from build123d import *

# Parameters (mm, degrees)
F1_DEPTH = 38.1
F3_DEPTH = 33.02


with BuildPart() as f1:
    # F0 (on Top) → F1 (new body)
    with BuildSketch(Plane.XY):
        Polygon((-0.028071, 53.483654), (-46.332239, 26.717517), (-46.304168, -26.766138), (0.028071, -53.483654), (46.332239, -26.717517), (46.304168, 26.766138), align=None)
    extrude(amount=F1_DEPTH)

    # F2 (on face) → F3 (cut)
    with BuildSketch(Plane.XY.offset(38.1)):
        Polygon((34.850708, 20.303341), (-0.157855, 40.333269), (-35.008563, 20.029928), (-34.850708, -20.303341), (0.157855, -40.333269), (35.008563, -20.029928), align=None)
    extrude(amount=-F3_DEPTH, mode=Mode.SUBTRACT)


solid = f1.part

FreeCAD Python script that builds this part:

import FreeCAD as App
import Part
import Sketcher
Q = App.Units.Quantity


def add_polygon(sketch, points):
    """Adds a closed chain of lines whose ends are joined by coincident constraints."""
    first, n = sketch.GeometryCount, len(points)
    for a, b in zip(points, points[1:] + points[:1]):
        sketch.addGeometry(Part.LineSegment(App.Vector(*a, 0), App.Vector(*b, 0)), False)
    for i in range(n):
        sketch.addConstraint(Sketcher.Constraint("Coincident", first + i, 2, first + (i + 1) % n, 1))

doc = App.newDocument("Part")
body = doc.addObject("PartDesign::Body", "Body")

# Sketch on XY plane
sketch1 = doc.addObject("Sketcher::SketchObject", "Sketch")
body.addObject(sketch1)
sketch1.AttachmentSupport = (doc.XY_Plane, [""])
sketch1.MapMode = "FlatFace"
add_polygon(sketch1, [(-0.028071, 53.483654), (-46.332239, 26.717517), (-46.304168, -26.766138), (0.028071, -53.483654), (46.332239, -26.717517), (46.304168, 26.766138)])  # lines 0-5
sketch1.addConstraint([
    Sketcher.Constraint("Symmetric", 0, 2, 3, 2, -1, 1),
    Sketcher.Constraint("Symmetric", 1, 2, 4, 2, -1, 1),
    Sketcher.Constraint("Symmetric", 2, 2, 5, 2, -1, 1),
    Sketcher.Constraint("Equal", 0, 1),
    Sketcher.Constraint("Equal", 1, 2),
    Sketcher.Constraint("Distance", 0, Q("53.483662 mm")),
    Sketcher.Constraint("DistanceX", 0, 2, -1, 1, Q("46.332239 mm")),
    Sketcher.Constraint("DistanceY", 1, 2, -1, 1, Q("26.766138 mm")),
    Sketcher.Constraint("DistanceX", -1, 1, 2, 2, Q("0.028071 mm")),
])
pad1 = doc.addObject("PartDesign::Pad", "Pad")
body.addObject(pad1)
pad1.Profile = sketch1
pad1.Length = Q("1.5 in")

# Sketch on XY plane
sketch2 = doc.addObject("Sketcher::SketchObject", "Sketch001")
body.addObject(sketch2)
sketch2.AttachmentSupport = (doc.XY_Plane, [""])
sketch2.MapMode = "FlatFace"
sketch2.AttachmentOffset = App.Placement(App.Vector(0, 0, 1.5 * 25.4), App.Rotation())
add_polygon(sketch2, [(34.850708, 20.303341), (-0.157855, 40.333269), (-35.008563, 20.029928), (-34.850708, -20.303341), (0.157855, -40.333269), (35.008563, -20.029928)])  # lines 0-5
sketch2.addConstraint([
    Sketcher.Constraint("Symmetric", 0, 2, 3, 2, -1, 1),
    Sketcher.Constraint("Symmetric", 1, 2, 4, 2, -1, 1),
    Sketcher.Constraint("Symmetric", 2, 2, 5, 2, -1, 1),
    Sketcher.Constraint("Equal", 0, 1),
    Sketcher.Constraint("Equal", 1, 2),
    Sketcher.Constraint("DistanceY", -1, 1, 0, 2, Q("40.333269 mm")),
    Sketcher.Constraint("DistanceY", -1, 1, 1, 2, Q("20.029928 mm")),
    Sketcher.Constraint("DistanceY", 2, 2, -1, 1, Q("20.303341 mm")),
    Sketcher.Constraint("DistanceX", 0, 2, 3, 2, Q("0.31571 mm")),
])
pocket1 = doc.addObject("PartDesign::Pocket", "Pocket")
body.addObject(pocket1)
pocket1.Profile = sketch2
pocket1.Length = Q("1.3 in")

doc.recompute()
